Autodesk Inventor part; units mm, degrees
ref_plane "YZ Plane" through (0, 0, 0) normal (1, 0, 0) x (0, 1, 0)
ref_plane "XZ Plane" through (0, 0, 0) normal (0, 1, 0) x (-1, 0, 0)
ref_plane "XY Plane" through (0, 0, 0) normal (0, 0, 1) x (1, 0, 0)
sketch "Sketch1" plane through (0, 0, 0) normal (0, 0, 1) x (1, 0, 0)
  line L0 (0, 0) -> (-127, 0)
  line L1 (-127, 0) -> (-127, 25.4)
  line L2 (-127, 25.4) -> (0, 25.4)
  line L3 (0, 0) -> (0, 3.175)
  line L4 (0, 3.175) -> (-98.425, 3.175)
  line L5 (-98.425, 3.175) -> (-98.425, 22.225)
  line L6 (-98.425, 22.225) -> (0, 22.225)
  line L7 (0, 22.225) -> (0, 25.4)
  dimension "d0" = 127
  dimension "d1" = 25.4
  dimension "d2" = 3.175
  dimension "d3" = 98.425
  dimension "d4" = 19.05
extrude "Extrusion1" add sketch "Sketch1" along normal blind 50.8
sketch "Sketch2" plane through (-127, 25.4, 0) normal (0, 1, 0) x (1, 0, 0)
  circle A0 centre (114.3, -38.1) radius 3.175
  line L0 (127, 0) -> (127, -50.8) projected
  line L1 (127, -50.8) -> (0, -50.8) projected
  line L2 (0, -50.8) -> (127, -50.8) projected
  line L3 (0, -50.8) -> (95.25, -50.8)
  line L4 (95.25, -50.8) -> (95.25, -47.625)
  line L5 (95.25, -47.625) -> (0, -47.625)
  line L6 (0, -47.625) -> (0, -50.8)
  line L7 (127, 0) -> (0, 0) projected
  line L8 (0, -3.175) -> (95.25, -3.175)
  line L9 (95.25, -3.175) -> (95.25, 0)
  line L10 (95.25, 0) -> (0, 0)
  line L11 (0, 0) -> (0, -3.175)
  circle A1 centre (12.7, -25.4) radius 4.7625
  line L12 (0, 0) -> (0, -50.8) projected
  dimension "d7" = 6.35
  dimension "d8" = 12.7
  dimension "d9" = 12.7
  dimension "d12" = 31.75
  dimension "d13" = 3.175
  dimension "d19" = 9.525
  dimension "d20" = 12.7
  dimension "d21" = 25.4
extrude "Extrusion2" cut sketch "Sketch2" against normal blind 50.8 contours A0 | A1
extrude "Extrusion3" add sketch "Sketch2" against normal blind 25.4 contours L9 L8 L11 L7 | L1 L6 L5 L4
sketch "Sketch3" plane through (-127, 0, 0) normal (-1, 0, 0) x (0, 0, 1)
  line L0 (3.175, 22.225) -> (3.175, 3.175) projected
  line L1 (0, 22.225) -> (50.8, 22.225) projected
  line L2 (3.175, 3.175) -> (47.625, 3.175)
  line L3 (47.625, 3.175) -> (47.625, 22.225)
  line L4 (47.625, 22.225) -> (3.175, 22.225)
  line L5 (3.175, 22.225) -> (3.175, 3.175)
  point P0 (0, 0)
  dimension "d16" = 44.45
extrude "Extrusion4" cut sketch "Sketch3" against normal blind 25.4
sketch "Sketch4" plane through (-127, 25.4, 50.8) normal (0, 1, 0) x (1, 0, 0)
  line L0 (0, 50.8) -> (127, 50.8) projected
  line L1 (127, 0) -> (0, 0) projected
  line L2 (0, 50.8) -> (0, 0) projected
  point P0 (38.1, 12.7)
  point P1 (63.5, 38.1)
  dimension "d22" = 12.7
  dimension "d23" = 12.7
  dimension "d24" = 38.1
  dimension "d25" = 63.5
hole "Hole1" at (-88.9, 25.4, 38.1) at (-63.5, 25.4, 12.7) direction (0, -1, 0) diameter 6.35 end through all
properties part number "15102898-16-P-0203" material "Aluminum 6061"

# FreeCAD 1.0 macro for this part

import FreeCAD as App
import Part
import Sketcher
from FreeCAD import Vector
Q = App.Units.Quantity

doc = App.newDocument("Part")
body = doc.addObject("PartDesign::Body", "Body")

sketch1 = body.newObject("Sketcher::SketchObject", "Sketch")
sketch1.AttachmentSupport = (doc.getObject("XY_Plane"), [""])
sketch1.MapMode = "FlatFace"
sketch1.addGeometry([
    Part.LineSegment(Vector(-127, 0, 0), Vector(0, 0, 0)),
    Part.LineSegment(Vector(0, 0, 0), Vector(0, 3.2, 0)),
    Part.LineSegment(Vector(0, 3.2, 0), Vector(-98.4, 3.2, 0)),
    Part.LineSegment(Vector(-98.4, 3.2, 0), Vector(-98.4, 22.2, 0)),
    Part.LineSegment(Vector(-98.4, 22.2, 0), Vector(0, 22.2, 0)),
    Part.LineSegment(Vector(0, 22.2, 0), Vector(0, 25.4, 0)),
    Part.LineSegment(Vector(0, 25.4, 0), Vector(-127, 25.4, 0)),
    Part.LineSegment(Vector(-127, 25.4, 0), Vector(-127, 0, 0)),
], False)
sketch1.addConstraint([
    Sketcher.Constraint("Coincident", 0, 2, 1, 1),
    Sketcher.Constraint("Coincident", 1, 2, 2, 1),
    Sketcher.Constraint("Coincident", 2, 2, 3, 1),
    Sketcher.Constraint("Coincident", 3, 2, 4, 1),
    Sketcher.Constraint("Coincident", 4, 2, 5, 1),
    Sketcher.Constraint("Coincident", 5, 2, 6, 1),
    Sketcher.Constraint("Coincident", 6, 2, 7, 1),
    Sketcher.Constraint("Coincident", 7, 2, 0, 1),
    Sketcher.Constraint("Horizontal", 0),
    Sketcher.Constraint("Vertical", 1),
    Sketcher.Constraint("Horizontal", 2),
    Sketcher.Constraint("Vertical", 3),
    Sketcher.Constraint("Horizontal", 4),
    Sketcher.Constraint("Vertical", 5),
    Sketcher.Constraint("Horizontal", 6),
    Sketcher.Constraint("Vertical", 7),
    Sketcher.Constraint("Coincident", 0, 2, -1, 1),
    Sketcher.Constraint("PointOnObject", 4, 2, -2),
    Sketcher.Constraint("Equal", 1, 5),
    Sketcher.Constraint("DistanceX", 0, 1, 0, 2, Q("5 in")),
    Sketcher.Constraint("DistanceY", 7, 2, 7, 1, Q("1 in")),
    Sketcher.Constraint("DistanceY", 3, 1, 3, 2, Q("0.75 in")),
    Sketcher.Constraint("DistanceX", 2, 2, 2, 1, Q("3.875 in")),
])
pad1 = body.newObject("PartDesign::Pad", "Pad")
pad1.Profile = sketch1
pad1.Length = Q("2 in")

sketch2 = body.newObject("Sketcher::SketchObject", "Sketch001")
sketch2.AttachmentSupport = (doc.getObject("XZ_Plane"), [""])
sketch2.MapMode = "FlatFace"
sketch2.AttachmentOffset = App.Placement(Vector(0, 0, -1 * 25.4), App.Rotation())
sketch2.addGeometry([
    Part.Circle(Vector(-12.7, 38.1, 0), Vector(0, 0, 1), 3.2),
    Part.Circle(Vector(-114.3, 25.4, 0), Vector(0, 0, 1), 4.8),
], False)
sketch2.addConstraint([
    Sketcher.Constraint("Diameter", 0, Q("0.25 in")),
    Sketcher.Constraint("Diameter", 1, Q("0.375 in")),
    Sketcher.Constraint("DistanceY", -1, 1, 1, 3, Q("1 in")),
    Sketcher.Constraint("DistanceX", 0, 3, -1, 1, Q("0.5 in")),
    Sketcher.Constraint("DistanceY", 1, 3, 0, 3, Q("0.5 in")),
    Sketcher.Constraint("DistanceX", 1, 3, 0, 3, Q("4 in")),
])
pocket1 = body.newObject("PartDesign::Pocket", "Pocket")
pocket1.Profile = sketch2
pocket1.Length = Q("2 in")
pocket1.Reversed = True

sketch3 = body.newObject("Sketcher::SketchObject", "Sketch002")
sketch3.AttachmentSupport = (doc.getObject("XZ_Plane"), [""])
sketch3.MapMode = "FlatFace"
sketch3.AttachmentOffset = App.Placement(Vector(0, 0, -1 * 25.4), App.Rotation())
sketch3.addGeometry([
    Part.LineSegment(Vector(-31.8, 3.2, 0), Vector(-31.8, 0, 0)),
    Part.LineSegment(Vector(-31.8, 0, 0), Vector(-127, 0, 0)),
    Part.LineSegment(Vector(-127, 0, 0), Vector(-127, 3.2, 0)),
    Part.LineSegment(Vector(-127, 3.2, 0), Vector(-31.8, 3.2, 0)),
    Part.LineSegment(Vector(-127, 50.8, 0), Vector(-31.8, 50.8, 0)),
    Part.LineSegment(Vector(-31.8, 50.8, 0), Vector(-31.8, 47.6, 0)),
    Part.LineSegment(Vector(-31.8, 47.6, 0), Vector(-127, 47.6, 0)),
    Part.LineSegment(Vector(-127, 47.6, 0), Vector(-127, 50.8, 0)),
], False)
sketch3.addConstraint([
    Sketcher.Constraint("Coincident", 0, 2, 1, 1),
    Sketcher.Constraint("Coincident", 1, 2, 2, 1),
    Sketcher.Constraint("Coincident", 2, 2, 3, 1),
    Sketcher.Constraint("Coincident", 3, 2, 0, 1),
    Sketcher.Constraint("Coincident", 4, 2, 5, 1),
    Sketcher.Constraint("Coincident", 5, 2, 6, 1),
    Sketcher.Constraint("Coincident", 6, 2, 7, 1),
    Sketcher.Constraint("Coincident", 7, 2, 4, 1),
    Sketcher.Constraint("Vertical", 0),
    Sketcher.Constraint("Horizontal", 1),
    Sketcher.Constraint("Vertical", 2),
    Sketcher.Constraint("Horizontal", 3),
    Sketcher.Constraint("Horizontal", 4),
    Sketcher.Constraint("Vertical", 5),
    Sketcher.Constraint("Horizontal", 6),
    Sketcher.Constraint("Vertical", 7),
    Sketcher.Constraint("PointOnObject", 0, 2, -1),
    Sketcher.Constraint("Vertical", 3, 2, 4, 2),
    Sketcher.Constraint("Vertical", 2, 2, 6, 2),
    Sketcher.Constraint("Equal", 2, 5),
    Sketcher.Constraint("DistanceY", 0, 2, 0, 1, Q("0.125 in")),
    Sketcher.Constraint("DistanceX", 0, 2, -1, 1, Q("1.25 in")),
    Sketcher.Constraint("DistanceX", 1, 2, -1, 1, Q("5 in")),
    Sketcher.Constraint("DistanceY", -1, 1, 4, 2, Q("2 in")),
])
pad2 = body.newObject("PartDesign::Pad", "Pad001")
pad2.Profile = sketch3
pad2.Length = Q("1 in")

sketch4 = body.newObject("Sketcher::SketchObject", "Sketch003")
sketch4.AttachmentSupport = (doc.getObject("YZ_Plane"), [""])
sketch4.MapMode = "FlatFace"
sketch4.AttachmentOffset = App.Placement(Vector(0, 0, -5 * 25.4), App.Rotation())
sketch4.addGeometry([
    Part.LineSegment(Vector(22, 48, 0), Vector(22, 3, 0)),
    Part.LineSegment(Vector(22, 3, 0), Vector(3, 3, 0)),
    Part.LineSegment(Vector(3, 3, 0), Vector(3, 48, 0)),
    Part.LineSegment(Vector(3, 48, 0), Vector(22, 48, 0)),
], False)
sketch4.addConstraint([
    Sketcher.Constraint("Coincident", 0, 2, 1, 1),
    Sketcher.Constraint("Coincident", 1, 2, 2, 1),
    Sketcher.Constraint("Coincident", 2, 2, 3, 1),
    Sketcher.Constraint("Coincident", 3, 2, 0, 1),
    Sketcher.Constraint("Vertical", 0),
    Sketcher.Constraint("Horizontal", 1),
    Sketcher.Constraint("Vertical", 2),
    Sketcher.Constraint("Horizontal", 3),
    Sketcher.Constraint("DistanceY", 0, 2, 0, 1, Q("1.75 in")),
    Sketcher.Constraint("DistanceX", 1, 2, 1, 1, Q("0.75 in")),
    Sketcher.Constraint("DistanceX", -1, 1, 0, 2, Q("0.875 in")),
    Sketcher.Constraint("DistanceY", -1, 1, 0, 2, Q("0.125 in")),
])
pocket2 = body.newObject("PartDesign::Pocket", "Pocket001")
pocket2.Profile = sketch4
pocket2.Length = Q("1 in")
pocket2.Reversed = True

sketch5 = body.newObject("Sketcher::SketchObject", "Sketch004")
sketch5.AttachmentSupport = (doc.getObject("XZ_Plane"), [""])
sketch5.MapMode = "FlatFace"
sketch5.AttachmentOffset = App.Placement(Vector(0, 0, -1 * 25.4), App.Rotation())
sketch5.addGeometry([
    Part.Circle(Vector(-88.9, 38.1, 0), Vector(0, 0, 1), 3.2),
    Part.Circle(Vector(-63.5, 12.7, 0), Vector(0, 0, 1), 3.2),
], False)
sketch5.addConstraint([
    Sketcher.Constraint("Equal", 0, 1),
    Sketcher.Constraint("Diameter", 0, Q("0.25 in")),
    Sketcher.Constraint("DistanceX", 0, 3, 1, 3, Q("1 in")),
    Sketcher.Constraint("DistanceY", 1, 3, 0, 3, Q("1 in")),
    Sketcher.Constraint("DistanceX", 0, 3, -1, 1, Q("3.5 in")),
    Sketcher.Constraint("DistanceY", -1, 1, 0, 3, Q("1.5 in")),
])
doc.recompute()
hole = body.newObject("PartDesign::Hole", "Hole")
hole.Profile = sketch5
hole.ThreadType = "None"
hole.Diameter = Q("0.25 in")
hole.DepthType = "ThroughAll"
hole.Reversed = True

doc.recompute()
